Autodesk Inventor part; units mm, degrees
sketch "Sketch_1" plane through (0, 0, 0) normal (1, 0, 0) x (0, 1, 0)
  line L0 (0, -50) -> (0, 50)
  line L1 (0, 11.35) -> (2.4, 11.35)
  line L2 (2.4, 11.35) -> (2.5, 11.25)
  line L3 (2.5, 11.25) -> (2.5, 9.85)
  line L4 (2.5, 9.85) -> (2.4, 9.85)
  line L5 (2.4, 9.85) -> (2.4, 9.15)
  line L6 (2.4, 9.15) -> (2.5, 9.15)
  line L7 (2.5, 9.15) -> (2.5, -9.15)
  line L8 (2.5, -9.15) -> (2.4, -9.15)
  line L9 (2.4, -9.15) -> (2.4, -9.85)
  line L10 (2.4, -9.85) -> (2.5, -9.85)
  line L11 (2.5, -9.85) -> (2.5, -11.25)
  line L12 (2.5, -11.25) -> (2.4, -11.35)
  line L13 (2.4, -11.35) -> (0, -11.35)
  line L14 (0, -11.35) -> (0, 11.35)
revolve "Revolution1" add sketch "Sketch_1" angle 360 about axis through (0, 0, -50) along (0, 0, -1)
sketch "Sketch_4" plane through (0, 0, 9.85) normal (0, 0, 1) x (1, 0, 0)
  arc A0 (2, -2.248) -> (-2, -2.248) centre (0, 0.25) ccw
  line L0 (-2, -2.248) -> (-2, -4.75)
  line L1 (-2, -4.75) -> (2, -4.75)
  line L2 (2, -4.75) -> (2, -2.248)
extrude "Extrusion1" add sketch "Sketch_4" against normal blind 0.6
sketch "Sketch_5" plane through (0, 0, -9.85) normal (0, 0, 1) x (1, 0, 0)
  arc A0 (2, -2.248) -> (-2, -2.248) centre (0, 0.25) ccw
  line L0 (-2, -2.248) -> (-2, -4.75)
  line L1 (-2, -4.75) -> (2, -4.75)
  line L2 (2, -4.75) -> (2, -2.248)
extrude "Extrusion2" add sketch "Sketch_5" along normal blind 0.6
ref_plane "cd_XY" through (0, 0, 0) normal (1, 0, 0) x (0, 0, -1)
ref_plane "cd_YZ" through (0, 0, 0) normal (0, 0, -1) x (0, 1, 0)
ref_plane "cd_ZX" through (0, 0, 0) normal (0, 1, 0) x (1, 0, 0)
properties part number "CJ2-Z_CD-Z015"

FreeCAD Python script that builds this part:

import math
import FreeCAD as App
import Part
import Sketcher

V = App.Vector
Q = App.Units.Quantity

doc = App.newDocument("Part")
params = doc.addObject("Spreadsheet::Sheet", "Params")
for row, (alias, value) in enumerate([
    ("sketch1_width", "2.4 mm"),
    ("sketch1_width2", "0.1 mm"),
    ("sketch1_height", "22.7 mm"),
    ("sketch1_height2", "1.4 mm"),
    ("sketch1_height3", "0.7 mm"),
    ("revolution_angle", "360 deg"),
    ("sketch2_radius", "3.2 mm"),
    ("sketch2_width", "4 mm"),
    ("pad1_length", "0.6 mm"),
    ("sketch3_radius", "3.2 mm"),
    ("sketch3_width", "4 mm"),
    ("pad2_length", "0.6 mm"),
], start=1):
    params.set(f"A{row}", alias)
    params.set(f"B{row}", "=" + value)
    params.setAlias(f"B{row}", alias)

body = doc.addObject("PartDesign::Body", "Body")

# Sketch on YZ plane
sketch1 = body.newObject("Sketcher::SketchObject", "Sketch")
sketch1.AttachmentSupport = (doc.getObject("YZ_Plane"), [""])
sketch1.MapMode = "FlatFace"
sketch1.addGeometry([
    Part.LineSegment(V(0, 11.35, 0), V(0, -11.35, 0)),  # 0
    Part.LineSegment(V(0, -11.35, 0), V(2.4, -11.35, 0)),  # 1
    Part.LineSegment(V(2.4, -11.35, 0), V(2.5, -11.25, 0)),  # 2
    Part.LineSegment(V(2.5, -11.25, 0), V(2.5, -9.85, 0)),  # 3
    Part.LineSegment(V(2.5, -9.85, 0), V(2.4, -9.85, 0)),  # 4
    Part.LineSegment(V(2.4, -9.85, 0), V(2.4, -9.15, 0)),  # 5
    Part.LineSegment(V(2.4, -9.15, 0), V(2.5, -9.15, 0)),  # 6
    Part.LineSegment(V(2.5, -9.15, 0), V(2.5, 9.15, 0)),  # 7
    Part.LineSegment(V(2.5, 9.15, 0), V(2.4, 9.15, 0)),  # 8
    Part.LineSegment(V(2.4, 9.15, 0), V(2.4, 9.85, 0)),  # 9
    Part.LineSegment(V(2.4, 9.85, 0), V(2.5, 9.85, 0)),  # 10
    Part.LineSegment(V(2.5, 9.85, 0), V(2.5, 11.25, 0)),  # 11
    Part.LineSegment(V(2.5, 11.25, 0), V(2.4, 11.35, 0)),  # 12
    Part.LineSegment(V(2.4, 11.35, 0), V(0, 11.35, 0)),  # 13
], False)
sketch1.addConstraint([
    Sketcher.Constraint("Coincident", 0, 2, 1, 1),
    Sketcher.Constraint("Coincident", 1, 2, 2, 1),
    Sketcher.Constraint("Coincident", 2, 2, 3, 1),
    Sketcher.Constraint("Coincident", 3, 2, 4, 1),
    Sketcher.Constraint("Coincident", 4, 2, 5, 1),
    Sketcher.Constraint("Coincident", 5, 2, 6, 1),
    Sketcher.Constraint("Coincident", 6, 2, 7, 1),
    Sketcher.Constraint("Coincident", 7, 2, 8, 1),
    Sketcher.Constraint("Coincident", 8, 2, 9, 1),
    Sketcher.Constraint("Coincident", 9, 2, 10, 1),
    Sketcher.Constraint("Coincident", 10, 2, 11, 1),
    Sketcher.Constraint("Coincident", 11, 2, 12, 1),
    Sketcher.Constraint("Coincident", 12, 2, 13, 1),
    Sketcher.Constraint("Coincident", 13, 2, 0, 1),
    Sketcher.Constraint("Vertical", 0),
    Sketcher.Constraint("Horizontal", 1),
    Sketcher.Constraint("Vertical", 3),
    Sketcher.Constraint("Horizontal", 4),
    Sketcher.Constraint("Vertical", 5),
    Sketcher.Constraint("Horizontal", 6),
    Sketcher.Constraint("Vertical", 7),
    Sketcher.Constraint("Horizontal", 8),
    Sketcher.Constraint("Vertical", 9),
    Sketcher.Constraint("Horizontal", 10),
    Sketcher.Constraint("Vertical", 11),
    Sketcher.Constraint("Horizontal", 13),
    Sketcher.Constraint("Symmetric", 0, 2, 13, 2, -1, 1),
    Sketcher.Constraint("Symmetric", 5, 2, 8, 2, -1),
    Sketcher.Constraint("Symmetric", 3, 2, 10, 2, -1),
    Sketcher.Constraint("Perpendicular", 2, 12),
    Sketcher.Constraint("Vertical", 1, 2, 4, 2),
    Sketcher.Constraint("Vertical", 3, 2, 6, 2),
    Sketcher.Constraint("Vertical", 9, 2, 12, 2),
    Sketcher.Constraint("Equal", 3, 11),
    Sketcher.Constraint("DistanceX", 1, 1, 1, 2, Q("2.4 mm")),
    Sketcher.Constraint("DistanceX", 4, 2, 4, 1, Q("0.1 mm")),
    Sketcher.Constraint("DistanceY", 0, 2, 0, 1, Q("22.7 mm")),
    Sketcher.Constraint("DistanceY", 3, 1, 3, 2, Q("1.4 mm")),
    Sketcher.Constraint("DistanceY", 5, 1, 5, 2, Q("0.7 mm")),
])
sketch1.setExpression("Constraints[34]", "Params.sketch1_width")
sketch1.setExpression("Constraints[35]", "Params.sketch1_width2")
sketch1.setExpression("Constraints[36]", "Params.sketch1_height")
sketch1.setExpression("Constraints[37]", "Params.sketch1_height2")
sketch1.setExpression("Constraints[38]", "Params.sketch1_height3")
revolution = body.newObject("PartDesign::Revolution", "Revolution")
revolution.Profile = sketch1
revolution.ReferenceAxis = (sketch1, ["V_Axis"])
revolution.setExpression("Angle", "Params.revolution_angle")

# Sketch on XY plane
sketch2 = body.newObject("Sketcher::SketchObject", "Sketch001")
sketch2.AttachmentSupport = (doc.getObject("XY_Plane"), [""])
sketch2.MapMode = "FlatFace"
sketch2.AttachmentOffset = App.Placement(V(0, 0, 9.85), App.Rotation())
sketch2.addGeometry([
    Part.LineSegment(V(2, -4.75, 0), V(2, -2.248, 0)),
    Part.ArcOfCircle(Part.Circle(V(0, 0.25, 0), V(0, 0, 1), 3.200001), math.radians(-51.317822), math.radians(231.317822)),
    Part.LineSegment(V(-2, -2.248, 0), V(-2, -4.75, 0)),
    Part.LineSegment(V(-2, -4.75, 0), V(2, -4.75, 0)),
], False)
sketch2.addConstraint([
    Sketcher.Constraint("Coincident", 0, 2, 1, 1),
    Sketcher.Constraint("Coincident", 1, 2, 2, 1),
    Sketcher.Constraint("Coincident", 2, 2, 3, 1),
    Sketcher.Constraint("Coincident", 3, 2, 0, 1),
    Sketcher.Constraint("Vertical", 0),
    Sketcher.Constraint("Vertical", 2),
    Sketcher.Constraint("Horizontal", 3),
    Sketcher.Constraint("Symmetric", 0, 2, 1, 2, -2),
    Sketcher.Constraint("Radius", 1, Q("3.2 mm")),
    Sketcher.Constraint("DistanceX", 3, 1, 3, 2, Q("4 mm")),
    Sketcher.Constraint("DistanceY", 2, 2, 1, 3, Q("5 mm")),
    Sketcher.Constraint("DistanceY", -1, 1, 1, 3, Q("0.25 mm")),
])
sketch2.setExpression("Constraints[8]", "Params.sketch2_radius")
sketch2.setExpression("Constraints[9]", "Params.sketch2_width")
pad1 = body.newObject("PartDesign::Pad", "Pad")
pad1.Profile = sketch2
pad1.setExpression("Length", "Params.pad1_length")
pad1.Reversed = True

# Sketch on XY plane
sketch3 = body.newObject("Sketcher::SketchObject", "Sketch002")
sketch3.AttachmentSupport = (doc.getObject("XY_Plane"), [""])
sketch3.MapMode = "FlatFace"
sketch3.AttachmentOffset = App.Placement(V(0, 0, -9.85), App.Rotation())
sketch3.addGeometry([
    Part.LineSegment(V(2, -4.75, 0), V(2, -2.248, 0)),
    Part.ArcOfCircle(Part.Circle(V(0, 0.25, 0), V(0, 0, 1), 3.200001), math.radians(-51.317822), math.radians(231.317822)),
    Part.LineSegment(V(-2, -2.248, 0), V(-2, -4.75, 0)),
    Part.LineSegment(V(-2, -4.75, 0), V(2, -4.75, 0)),
], False)
sketch3.addConstraint([
    Sketcher.Constraint("Coincident", 0, 2, 1, 1),
    Sketcher.Constraint("Coincident", 1, 2, 2, 1),
    Sketcher.Constraint("Coincident", 2, 2, 3, 1),
    Sketcher.Constraint("Coincident", 3, 2, 0, 1),
    Sketcher.Constraint("Vertical", 0),
    Sketcher.Constraint("Vertical", 2),
    Sketcher.Constraint("Horizontal", 3),
    Sketcher.Constraint("Symmetric", 0, 2, 1, 2, -2),
    Sketcher.Constraint("Radius", 1, Q("3.2 mm")),
    Sketcher.Constraint("DistanceX", 3, 1, 3, 2, Q("4 mm")),
    Sketcher.Constraint("DistanceY", 2, 2, 1, 3, Q("5 mm")),
    Sketcher.Constraint("DistanceY", -1, 1, 1, 3, Q("0.25 mm")),
])
sketch3.setExpression("Constraints[8]", "Params.sketch3_radius")
sketch3.setExpression("Constraints[9]", "Params.sketch3_width")
pad2 = body.newObject("PartDesign::Pad", "Pad001")
pad2.Profile = sketch3
pad2.setExpression("Length", "Params.pad2_length")

doc.recompute()
